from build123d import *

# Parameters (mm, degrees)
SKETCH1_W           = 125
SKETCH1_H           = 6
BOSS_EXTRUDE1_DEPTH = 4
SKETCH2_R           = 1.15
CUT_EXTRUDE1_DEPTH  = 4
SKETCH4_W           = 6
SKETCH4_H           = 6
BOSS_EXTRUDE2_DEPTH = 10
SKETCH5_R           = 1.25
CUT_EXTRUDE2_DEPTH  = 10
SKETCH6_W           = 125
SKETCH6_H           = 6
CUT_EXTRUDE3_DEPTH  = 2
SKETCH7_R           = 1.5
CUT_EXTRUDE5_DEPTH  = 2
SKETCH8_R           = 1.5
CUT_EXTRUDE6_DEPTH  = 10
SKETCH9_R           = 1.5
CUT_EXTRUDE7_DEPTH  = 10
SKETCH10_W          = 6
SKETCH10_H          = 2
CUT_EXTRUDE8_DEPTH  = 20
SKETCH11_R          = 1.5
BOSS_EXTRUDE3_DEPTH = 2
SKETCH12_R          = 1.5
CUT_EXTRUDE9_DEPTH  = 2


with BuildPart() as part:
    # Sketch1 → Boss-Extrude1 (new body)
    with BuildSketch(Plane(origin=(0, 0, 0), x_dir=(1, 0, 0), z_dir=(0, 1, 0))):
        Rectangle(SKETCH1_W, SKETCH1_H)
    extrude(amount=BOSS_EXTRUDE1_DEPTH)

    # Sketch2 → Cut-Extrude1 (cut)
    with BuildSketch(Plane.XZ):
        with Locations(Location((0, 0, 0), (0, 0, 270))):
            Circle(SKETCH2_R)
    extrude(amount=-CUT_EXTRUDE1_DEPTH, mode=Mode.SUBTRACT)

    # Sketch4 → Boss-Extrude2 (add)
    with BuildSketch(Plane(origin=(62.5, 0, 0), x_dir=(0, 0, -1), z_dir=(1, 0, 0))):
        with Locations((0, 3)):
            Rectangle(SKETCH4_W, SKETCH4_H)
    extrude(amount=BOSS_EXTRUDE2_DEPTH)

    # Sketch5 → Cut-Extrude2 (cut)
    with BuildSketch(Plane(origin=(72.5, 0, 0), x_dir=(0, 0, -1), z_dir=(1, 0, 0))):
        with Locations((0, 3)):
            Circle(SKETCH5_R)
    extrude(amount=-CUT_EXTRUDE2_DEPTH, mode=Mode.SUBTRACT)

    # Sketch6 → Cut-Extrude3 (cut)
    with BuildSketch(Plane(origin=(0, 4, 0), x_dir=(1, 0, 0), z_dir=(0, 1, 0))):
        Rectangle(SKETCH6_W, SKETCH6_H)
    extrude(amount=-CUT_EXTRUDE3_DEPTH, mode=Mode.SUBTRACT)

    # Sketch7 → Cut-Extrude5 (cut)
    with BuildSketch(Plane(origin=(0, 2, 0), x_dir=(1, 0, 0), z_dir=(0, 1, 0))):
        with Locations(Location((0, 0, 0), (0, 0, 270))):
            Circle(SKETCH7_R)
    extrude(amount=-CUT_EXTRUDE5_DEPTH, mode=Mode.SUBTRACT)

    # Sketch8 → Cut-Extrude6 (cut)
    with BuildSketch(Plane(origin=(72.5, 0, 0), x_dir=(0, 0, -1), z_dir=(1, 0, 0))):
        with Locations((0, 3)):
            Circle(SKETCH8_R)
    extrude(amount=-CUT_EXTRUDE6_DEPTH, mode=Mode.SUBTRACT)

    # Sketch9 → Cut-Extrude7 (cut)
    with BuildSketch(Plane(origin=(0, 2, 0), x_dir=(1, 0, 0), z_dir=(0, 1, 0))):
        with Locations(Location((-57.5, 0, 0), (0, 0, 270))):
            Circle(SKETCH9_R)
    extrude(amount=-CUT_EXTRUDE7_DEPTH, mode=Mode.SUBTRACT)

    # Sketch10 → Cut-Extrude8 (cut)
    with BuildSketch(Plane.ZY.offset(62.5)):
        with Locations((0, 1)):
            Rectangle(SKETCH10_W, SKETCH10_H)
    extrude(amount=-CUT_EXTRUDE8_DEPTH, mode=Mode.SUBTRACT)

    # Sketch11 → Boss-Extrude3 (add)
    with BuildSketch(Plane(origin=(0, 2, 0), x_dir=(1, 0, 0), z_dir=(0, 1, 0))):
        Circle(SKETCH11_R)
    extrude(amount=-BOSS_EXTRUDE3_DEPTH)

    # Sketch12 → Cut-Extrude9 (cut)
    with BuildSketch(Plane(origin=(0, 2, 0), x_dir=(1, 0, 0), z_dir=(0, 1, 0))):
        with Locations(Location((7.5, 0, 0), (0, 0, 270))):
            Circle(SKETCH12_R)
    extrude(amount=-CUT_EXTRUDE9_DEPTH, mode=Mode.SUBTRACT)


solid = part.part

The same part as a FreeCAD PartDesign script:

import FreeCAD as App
import Part
import Sketcher
from FreeCAD import Vector
Q = App.Units.Quantity


def add_polygon(sketch, points):
    """Adds a closed chain of lines whose ends are joined by coincident constraints."""
    first, n = sketch.GeometryCount, len(points)
    for a, b in zip(points, points[1:] + points[:1]):
        sketch.addGeometry(Part.LineSegment(App.Vector(*a, 0), App.Vector(*b, 0)), False)
    for i in range(n):
        sketch.addConstraint(Sketcher.Constraint("Coincident", first + i, 2, first + (i + 1) % n, 1))

doc = App.newDocument("Part")
params = doc.addObject("Spreadsheet::Sheet", "Params")
for row, (alias, value) in enumerate([
    ("sketch1_width", "125 mm"),
    ("sketch1_height", "6 mm"),
    ("pad1_length", "4 mm"),
    ("sketch2_diameter", "2.3 mm"),
    ("pocket1_length", "4 mm"),
    ("sketch3_width", "6 mm"),
    ("pad2_length", "10 mm"),
    ("sketch4_diameter", "2.5 mm"),
    ("pocket2_length", "10 mm"),
    ("sketch5_width", "125 mm"),
    ("sketch5_height", "6 mm"),
    ("pocket3_length", "2 mm"),
    ("sketch6_diameter", "3 mm"),
    ("pocket4_length", "2 mm"),
    ("sketch7_diameter", "3 mm"),
    ("pocket5_length", "10 mm"),
    ("sketch8_diameter", "3 mm"),
    ("pocket6_length", "10 mm"),
    ("sketch9_width", "2 mm"),
    ("sketch9_height", "6 mm"),
    ("pocket7_length", "20 mm"),
    ("sketch10_diameter", "3 mm"),
    ("pad3_length", "2 mm"),
    ("sketch11_diameter", "3 mm"),
    ("pocket8_length", "2 mm"),
], start=1):
    params.set(f"A{row}", alias)
    params.set(f"B{row}", "=" + value)
    params.setAlias(f"B{row}", alias)

body = doc.addObject("PartDesign::Body", "Body")

sketch1 = doc.addObject("Sketcher::SketchObject", "Sketch")
body.addObject(sketch1)
sketch1.AttachmentSupport = (doc.XZ_Plane, [""])
sketch1.MapMode = "FlatFace"
add_polygon(sketch1, [(-62, -3), (-62, 3), (62, 3), (62, -3)])
sketch1.addConstraint(Sketcher.Constraint("Vertical", 0))
sketch1.addConstraint(Sketcher.Constraint("Horizontal", 1))
sketch1.addConstraint(Sketcher.Constraint("Vertical", 2))
sketch1.addConstraint(Sketcher.Constraint("Horizontal", 3))
sketch1.addConstraint(Sketcher.Constraint("Symmetric", 0, 2, 2, 2, -1, 1))
sketch1.addConstraint(Sketcher.Constraint("DistanceX", 1, 1, 1, 2, Q("125 mm")))
sketch1.addConstraint(Sketcher.Constraint("DistanceY", 0, 1, 0, 2, Q("6 mm")))
sketch1.setExpression("Constraints[9]", "Params.sketch1_width")
sketch1.setExpression("Constraints[10]", "Params.sketch1_height")
pad1 = doc.addObject("PartDesign::Pad", "Pad")
body.addObject(pad1)
pad1.Profile = sketch1
pad1.setExpression("Length", "Params.pad1_length")
pad1.Reversed = True

sketch2 = doc.addObject("Sketcher::SketchObject", "Sketch001")
body.addObject(sketch2)
sketch2.AttachmentSupport = (doc.XZ_Plane, [""])
sketch2.MapMode = "FlatFace"
sketch2.addGeometry(Part.Circle(Vector(0, 0, 0), Vector(0, 0, 1), 1.1), False)
sketch2.addConstraint(Sketcher.Constraint("Coincident", 0, 3, -1, 1))
sketch2.addConstraint(Sketcher.Constraint("Diameter", 0, Q("2.3 mm")))
sketch2.setExpression("Constraints[1]", "Params.sketch2_diameter")
pocket1 = doc.addObject("PartDesign::Pocket", "Pocket")
body.addObject(pocket1)
pocket1.Profile = sketch2
pocket1.setExpression("Length", "Params.pocket1_length")

sketch3 = doc.addObject("Sketcher::SketchObject", "Sketch002")
body.addObject(sketch3)
sketch3.AttachmentSupport = (doc.YZ_Plane, [""])
sketch3.MapMode = "FlatFace"
sketch3.AttachmentOffset = App.Placement(Vector(0, 0, 62.5), App.Rotation())
add_polygon(sketch3, [(6, 3), (0, 3), (0, -3), (6, -3)])
sketch3.addConstraint(Sketcher.Constraint("Horizontal", 0))
sketch3.addConstraint(Sketcher.Constraint("Vertical", 1))
sketch3.addConstraint(Sketcher.Constraint("Horizontal", 2))
sketch3.addConstraint(Sketcher.Constraint("Vertical", 3))
sketch3.addConstraint(Sketcher.Constraint("Symmetric", 0, 2, 1, 2, -1, 1))
sketch3.addConstraint(Sketcher.Constraint("Equal", 2, 1))
sketch3.addConstraint(Sketcher.Constraint("DistanceX", 0, 2, 0, 1, Q("6 mm")))
sketch3.setExpression("Constraints[10]", "Params.sketch3_width")
pad2 = doc.addObject("PartDesign::Pad", "Pad001")
body.addObject(pad2)
pad2.Profile = sketch3
pad2.setExpression("Length", "Params.pad2_length")

sketch4 = doc.addObject("Sketcher::SketchObject", "Sketch003")
body.addObject(sketch4)
sketch4.AttachmentSupport = (doc.YZ_Plane, [""])
sketch4.MapMode = "FlatFace"
sketch4.AttachmentOffset = App.Placement(Vector(0, 0, 72.5), App.Rotation())
sketch4.addGeometry(Part.Circle(Vector(3, 0, 0), Vector(0, 0, 1), 1.2), False)
sketch4.addConstraint(Sketcher.Constraint("PointOnObject", 0, 3, -1))
sketch4.addConstraint(Sketcher.Constraint("Diameter", 0, Q("2.5 mm")))
sketch4.addConstraint(Sketcher.Constraint("DistanceX", -1, 1, 0, 3, Q("3 mm")))
sketch4.setExpression("Constraints[1]", "Params.sketch4_diameter")
pocket2 = doc.addObject("PartDesign::Pocket", "Pocket001")
body.addObject(pocket2)
pocket2.Profile = sketch4
pocket2.setExpression("Length", "Params.pocket2_length")

sketch5 = doc.addObject("Sketcher::SketchObject", "Sketch004")
body.addObject(sketch5)
sketch5.AttachmentSupport = (doc.XZ_Plane, [""])
sketch5.MapMode = "FlatFace"
sketch5.AttachmentOffset = App.Placement(Vector(0, 0, -4), App.Rotation())
add_polygon(sketch5, [(-62, -3), (-62, 3), (62, 3), (62, -3)])
sketch5.addConstraint(Sketcher.Constraint("Vertical", 0))
sketch5.addConstraint(Sketcher.Constraint("Horizontal", 1))
sketch5.addConstraint(Sketcher.Constraint("Vertical", 2))
sketch5.addConstraint(Sketcher.Constraint("Horizontal", 3))
sketch5.addConstraint(Sketcher.Constraint("Symmetric", 0, 2, 2, 2, -1, 1))
sketch5.addConstraint(Sketcher.Constraint("DistanceX", 1, 1, 1, 2, Q("125 mm")))
sketch5.addConstraint(Sketcher.Constraint("DistanceY", 0, 1, 0, 2, Q("6 mm")))
sketch5.setExpression("Constraints[9]", "Params.sketch5_width")
sketch5.setExpression("Constraints[10]", "Params.sketch5_height")
pocket3 = doc.addObject("PartDesign::Pocket", "Pocket002")
body.addObject(pocket3)
pocket3.Profile = sketch5
pocket3.setExpression("Length", "Params.pocket3_length")
pocket3.Reversed = True

sketch6 = doc.addObject("Sketcher::SketchObject", "Sketch005")
body.addObject(sketch6)
sketch6.AttachmentSupport = (doc.XZ_Plane, [""])
sketch6.MapMode = "FlatFace"
sketch6.AttachmentOffset = App.Placement(Vector(0, 0, -2), App.Rotation())
sketch6.addGeometry(Part.Circle(Vector(0, 0, 0), Vector(0, 0, 1), 1.5), False)
sketch6.addConstraint(Sketcher.Constraint("Coincident", 0, 3, -1, 1))
sketch6.addConstraint(Sketcher.Constraint("Diameter", 0, Q("3 mm")))
sketch6.setExpression("Constraints[1]", "Params.sketch6_diameter")
pocket4 = doc.addObject("PartDesign::Pocket", "Pocket003")
body.addObject(pocket4)
pocket4.Profile = sketch6
pocket4.setExpression("Length", "Params.pocket4_length")
pocket4.Reversed = True

sketch7 = doc.addObject("Sketcher::SketchObject", "Sketch006")
body.addObject(sketch7)
sketch7.AttachmentSupport = (doc.YZ_Plane, [""])
sketch7.MapMode = "FlatFace"
sketch7.AttachmentOffset = App.Placement(Vector(0, 0, 72.5), App.Rotation())
sketch7.addGeometry(Part.Circle(Vector(3, 0, 0), Vector(0, 0, 1), 1.5), False)
sketch7.addConstraint(Sketcher.Constraint("PointOnObject", 0, 3, -1))
sketch7.addConstraint(Sketcher.Constraint("Diameter", 0, Q("3 mm")))
sketch7.addConstraint(Sketcher.Constraint("DistanceX", -1, 1, 0, 3, Q("3 mm")))
sketch7.setExpression("Constraints[1]", "Params.sketch7_diameter")
pocket5 = doc.addObject("PartDesign::Pocket", "Pocket004")
body.addObject(pocket5)
pocket5.Profile = sketch7
pocket5.setExpression("Length", "Params.pocket5_length")

sketch8 = doc.addObject("Sketcher::SketchObject", "Sketch007")
body.addObject(sketch8)
sketch8.AttachmentSupport = (doc.XZ_Plane, [""])
sketch8.MapMode = "FlatFace"
sketch8.AttachmentOffset = App.Placement(Vector(0, 0, -2), App.Rotation())
sketch8.addGeometry(Part.Circle(Vector(-57.5, 0, 0), Vector(0, 0, 1), 1.5), False)
sketch8.addConstraint(Sketcher.Constraint("PointOnObject", 0, 3, -1))
sketch8.addConstraint(Sketcher.Constraint("Diameter", 0, Q("3 mm")))
sketch8.addConstraint(Sketcher.Constraint("DistanceX", 0, 3, -1, 1, Q("57.5 mm")))
sketch8.setExpression("Constraints[1]", "Params.sketch8_diameter")
pocket6 = doc.addObject("PartDesign::Pocket", "Pocket005")
body.addObject(pocket6)
pocket6.Profile = sketch8
pocket6.setExpression("Length", "Params.pocket6_length")
pocket6.Reversed = True

sketch9 = doc.addObject("Sketcher::SketchObject", "Sketch008")
body.addObject(sketch9)
sketch9.AttachmentSupport = (doc.YZ_Plane, [""])
sketch9.MapMode = "FlatFace"
sketch9.AttachmentOffset = App.Placement(Vector(0, 0, -62.5), App.Rotation())
add_polygon(sketch9, [(2, -3), (0, -3), (0, 3), (2, 3)])
sketch9.addConstraint(Sketcher.Constraint("Horizontal", 0))
sketch9.addConstraint(Sketcher.Constraint("Vertical", 1))
sketch9.addConstraint(Sketcher.Constraint("Horizontal", 2))
sketch9.addConstraint(Sketcher.Constraint("Vertical", 3))
sketch9.addConstraint(Sketcher.Constraint("Symmetric", 0, 2, 1, 2, -1, 1))
sketch9.addConstraint(Sketcher.Constraint("DistanceX", 0, 2, 0, 1, Q("2 mm")))
sketch9.addConstraint(Sketcher.Constraint("DistanceY", 1, 1, 1, 2, Q("6 mm")))
sketch9.setExpression("Constraints[9]", "Params.sketch9_width")
sketch9.setExpression("Constraints[10]", "Params.sketch9_height")
pocket7 = doc.addObject("PartDesign::Pocket", "Pocket006")
body.addObject(pocket7)
pocket7.Profile = sketch9
pocket7.setExpression("Length", "Params.pocket7_length")
pocket7.Reversed = True

sketch10 = doc.addObject("Sketcher::SketchObject", "Sketch009")
body.addObject(sketch10)
sketch10.AttachmentSupport = (doc.XZ_Plane, [""])
sketch10.MapMode = "FlatFace"
sketch10.AttachmentOffset = App.Placement(Vector(0, 0, -2), App.Rotation())
sketch10.addGeometry(Part.Circle(Vector(0, 0, 0), Vector(0, 0, 1), 1.5), False)
sketch10.addConstraint(Sketcher.Constraint("Coincident", 0, 3, -1, 1))
sketch10.addConstraint(Sketcher.Constraint("Diameter", 0, Q("3 mm")))
sketch10.setExpression("Constraints[1]", "Params.sketch10_diameter")
pad3 = doc.addObject("PartDesign::Pad", "Pad002")
body.addObject(pad3)
pad3.Profile = sketch10
pad3.setExpression("Length", "Params.pad3_length")

sketch11 = doc.addObject("Sketcher::SketchObject", "Sketch010")
body.addObject(sketch11)
sketch11.AttachmentSupport = (doc.XZ_Plane, [""])
sketch11.MapMode = "FlatFace"
sketch11.AttachmentOffset = App.Placement(Vector(0, 0, -2), App.Rotation())
sketch11.addGeometry(Part.Circle(Vector(7.5, 0, 0), Vector(0, 0, 1), 1.5), False)
sketch11.addConstraint(Sketcher.Constraint("PointOnObject", 0, 3, -1))
sketch11.addConstraint(Sketcher.Constraint("Diameter", 0, Q("3 mm")))
sketch11.addConstraint(Sketcher.Constraint("DistanceX", -1, 1, 0, 3, Q("7.5 mm")))
sketch11.setExpression("Constraints[1]", "Params.sketch11_diameter")
pocket8 = doc.addObject("PartDesign::Pocket", "Pocket007")
body.addObject(pocket8)
pocket8.Profile = sketch11
pocket8.setExpression("Length", "Params.pocket8_length")
pocket8.Reversed = True

doc.recompute()
